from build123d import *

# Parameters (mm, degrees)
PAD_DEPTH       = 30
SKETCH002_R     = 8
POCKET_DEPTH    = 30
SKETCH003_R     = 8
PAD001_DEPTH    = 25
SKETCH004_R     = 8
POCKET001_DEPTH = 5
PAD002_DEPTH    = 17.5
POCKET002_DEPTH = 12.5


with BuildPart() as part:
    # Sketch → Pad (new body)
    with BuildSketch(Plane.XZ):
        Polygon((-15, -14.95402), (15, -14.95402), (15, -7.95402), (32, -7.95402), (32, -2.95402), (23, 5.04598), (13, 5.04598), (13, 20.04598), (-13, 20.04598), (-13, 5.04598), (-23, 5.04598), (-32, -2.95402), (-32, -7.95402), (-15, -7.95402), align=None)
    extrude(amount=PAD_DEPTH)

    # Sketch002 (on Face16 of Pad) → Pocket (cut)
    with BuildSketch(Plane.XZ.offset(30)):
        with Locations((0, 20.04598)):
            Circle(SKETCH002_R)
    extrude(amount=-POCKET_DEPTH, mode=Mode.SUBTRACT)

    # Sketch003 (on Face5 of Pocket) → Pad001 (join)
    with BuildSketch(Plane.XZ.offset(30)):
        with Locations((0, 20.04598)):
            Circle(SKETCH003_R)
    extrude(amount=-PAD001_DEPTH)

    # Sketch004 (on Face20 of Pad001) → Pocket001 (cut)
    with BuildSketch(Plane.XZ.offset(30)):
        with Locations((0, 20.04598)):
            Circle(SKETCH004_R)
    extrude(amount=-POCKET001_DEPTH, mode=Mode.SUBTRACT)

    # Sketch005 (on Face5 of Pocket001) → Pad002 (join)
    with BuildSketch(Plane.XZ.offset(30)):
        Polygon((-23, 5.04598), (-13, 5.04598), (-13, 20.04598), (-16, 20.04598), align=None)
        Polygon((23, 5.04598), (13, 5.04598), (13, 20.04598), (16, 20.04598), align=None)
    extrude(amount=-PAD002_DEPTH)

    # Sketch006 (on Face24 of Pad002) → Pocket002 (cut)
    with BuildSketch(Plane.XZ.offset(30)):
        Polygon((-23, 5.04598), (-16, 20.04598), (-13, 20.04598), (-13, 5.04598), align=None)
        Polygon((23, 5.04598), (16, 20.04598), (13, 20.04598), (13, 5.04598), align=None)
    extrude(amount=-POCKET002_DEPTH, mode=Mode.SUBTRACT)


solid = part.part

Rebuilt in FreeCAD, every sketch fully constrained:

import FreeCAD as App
import Part
import Sketcher
from FreeCAD import Vector
Q = App.Units.Quantity

doc = App.newDocument("Part")
body = doc.addObject("PartDesign::Body", "Body")

# Sketch on XZ plane
sketch1 = body.newObject("Sketcher::SketchObject", "Sketch")
sketch1.AttachmentSupport = (doc.getObject("XZ_Plane"), [""])
sketch1.MapMode = "FlatFace"
sketch1.addGeometry([
    Part.LineSegment(Vector(-15, -15, 0), Vector(15, -15, 0)),  # 0
    Part.LineSegment(Vector(15, -15, 0), Vector(15, -8, 0)),  # 1
    Part.LineSegment(Vector(15, -8, 0), Vector(32, -8, 0)),  # 2
    Part.LineSegment(Vector(32, -8, 0), Vector(32, -3, 0)),  # 3
    Part.LineSegment(Vector(32, -3, 0), Vector(23, 5, 0)),  # 4
    Part.LineSegment(Vector(23, 5, 0), Vector(13, 5, 0)),  # 5
    Part.LineSegment(Vector(13, 5, 0), Vector(13, 20, 0)),  # 6
    Part.LineSegment(Vector(13, 20, 0), Vector(-13, 20, 0)),  # 7
    Part.LineSegment(Vector(-13, 20, 0), Vector(-13, 5, 0)),  # 8
    Part.LineSegment(Vector(-13, 5, 0), Vector(-23, 5, 0)),  # 9
    Part.LineSegment(Vector(-23, 5, 0), Vector(-32, -3, 0)),  # 10
    Part.LineSegment(Vector(-32, -3, 0), Vector(-32, -8, 0)),  # 11
    Part.LineSegment(Vector(-32, -8, 0), Vector(-15, -8, 0)),  # 12
    Part.LineSegment(Vector(-15, -8, 0), Vector(-15, -15, 0)),  # 13
], False)
sketch1.addConstraint([
    Sketcher.Constraint("Coincident", 0, 2, 1, 1),
    Sketcher.Constraint("Coincident", 1, 2, 2, 1),
    Sketcher.Constraint("Coincident", 2, 2, 3, 1),
    Sketcher.Constraint("Coincident", 3, 2, 4, 1),
    Sketcher.Constraint("Coincident", 4, 2, 5, 1),
    Sketcher.Constraint("Coincident", 5, 2, 6, 1),
    Sketcher.Constraint("Coincident", 6, 2, 7, 1),
    Sketcher.Constraint("Coincident", 7, 2, 8, 1),
    Sketcher.Constraint("Coincident", 8, 2, 9, 1),
    Sketcher.Constraint("Coincident", 9, 2, 10, 1),
    Sketcher.Constraint("Coincident", 10, 2, 11, 1),
    Sketcher.Constraint("Coincident", 11, 2, 12, 1),
    Sketcher.Constraint("Coincident", 12, 2, 13, 1),
    Sketcher.Constraint("Coincident", 13, 2, 0, 1),
    Sketcher.Constraint("Horizontal", 0),
    Sketcher.Constraint("Vertical", 1),
    Sketcher.Constraint("Horizontal", 2),
    Sketcher.Constraint("Vertical", 3),
    Sketcher.Constraint("Horizontal", 5),
    Sketcher.Constraint("Vertical", 6),
    Sketcher.Constraint("Horizontal", 7),
    Sketcher.Constraint("Vertical", 8),
    Sketcher.Constraint("Horizontal", 9),
    Sketcher.Constraint("Vertical", 11),
    Sketcher.Constraint("Horizontal", 12),
    Sketcher.Constraint("Vertical", 13),
    Sketcher.Constraint("Symmetric", 5, 2, 8, 2, -2),
    Sketcher.Constraint("Symmetric", 3, 2, 10, 2, -2),
    Sketcher.Constraint("Symmetric", 1, 2, 12, 2, -2),
    Sketcher.Constraint("Equal", 5, 9),
    Sketcher.Constraint("DistanceX", 0, 1, 0, 2, Q("30 mm")),
    Sketcher.Constraint("DistanceX", 2, 1, 2, 2, Q("17 mm")),
    Sketcher.Constraint("DistanceX", 5, 2, 5, 1, Q("10 mm")),
    Sketcher.Constraint("DistanceX", 7, 2, 7, 1, Q("26 mm")),
    Sketcher.Constraint("DistanceY", 1, 1, 1, 2, Q("7 mm")),
    Sketcher.Constraint("DistanceY", 3, 1, 3, 2, Q("5 mm")),
    Sketcher.Constraint("DistanceY", 6, 1, 6, 2, Q("15 mm")),
    Sketcher.Constraint("DistanceY", 3, 2, 4, 2, Q("8 mm")),
    Sketcher.Constraint("DistanceY", 0, 2, -1, 1, Q("14.95402 mm")),
])
pad1 = body.newObject("PartDesign::Pad", "Pad")
pad1.Profile = sketch1
pad1.Length = 30

# Sketch on XZ plane
sketch2 = body.newObject("Sketcher::SketchObject", "Sketch001")
sketch2.AttachmentSupport = (doc.getObject("XZ_Plane"), [""])
sketch2.MapMode = "FlatFace"
sketch2.AttachmentOffset = App.Placement(Vector(0, 0, 30), App.Rotation())
sketch2.addGeometry(Part.Circle(Vector(0, 20, 0), Vector(0, 0, 1), 8), False)
sketch2.addConstraint([
    Sketcher.Constraint("PointOnObject", 0, 3, -2),
    Sketcher.Constraint("Diameter", 0, Q("16 mm")),
    Sketcher.Constraint("DistanceY", -1, 1, 0, 3, Q("20.04598 mm")),
])
pocket1 = body.newObject("PartDesign::Pocket", "Pocket")
pocket1.Profile = sketch2
pocket1.Length = 30

# Sketch on XZ plane
sketch3 = body.newObject("Sketcher::SketchObject", "Sketch002")
sketch3.AttachmentSupport = (doc.getObject("XZ_Plane"), [""])
sketch3.MapMode = "FlatFace"
sketch3.AttachmentOffset = App.Placement(Vector(0, 0, 30), App.Rotation())
sketch3.addGeometry(Part.Circle(Vector(0, 20, 0), Vector(0, 0, 1), 8), False)
sketch3.addConstraint([
    Sketcher.Constraint("PointOnObject", 0, 3, -2),
    Sketcher.Constraint("Diameter", 0, Q("16 mm")),
    Sketcher.Constraint("DistanceY", -1, 1, 0, 3, Q("20.04598 mm")),
])
pad2 = body.newObject("PartDesign::Pad", "Pad001")
pad2.Profile = sketch3
pad2.Length = 25
pad2.Reversed = True

# Sketch on XZ plane
sketch4 = body.newObject("Sketcher::SketchObject", "Sketch003")
sketch4.AttachmentSupport = (doc.getObject("XZ_Plane"), [""])
sketch4.MapMode = "FlatFace"
sketch4.AttachmentOffset = App.Placement(Vector(0, 0, 30), App.Rotation())
sketch4.addGeometry(Part.Circle(Vector(0, 20, 0), Vector(0, 0, 1), 8), False)
sketch4.addConstraint([
    Sketcher.Constraint("PointOnObject", 0, 3, -2),
    Sketcher.Constraint("Diameter", 0, Q("16 mm")),
    Sketcher.Constraint("DistanceY", -1, 1, 0, 3, Q("20.04598 mm")),
])
pocket2 = body.newObject("PartDesign::Pocket", "Pocket001")
pocket2.Profile = sketch4
pocket2.Length = 5

# Sketch on XZ plane
sketch5 = body.newObject("Sketcher::SketchObject", "Sketch004")
sketch5.AttachmentSupport = (doc.getObject("XZ_Plane"), [""])
sketch5.MapMode = "FlatFace"
sketch5.AttachmentOffset = App.Placement(Vector(0, 0, 30), App.Rotation())
sketch5.addGeometry([
    Part.LineSegment(Vector(-23, 5, 0), Vector(-13, 5, 0)),  # 0
    Part.LineSegment(Vector(-13, 5, 0), Vector(-13, 20, 0)),  # 1
    Part.LineSegment(Vector(-13, 20, 0), Vector(-16, 20, 0)),  # 2
    Part.LineSegment(Vector(-16, 20, 0), Vector(-23, 5, 0)),  # 3
    Part.LineSegment(Vector(13, 5, 0), Vector(23, 5, 0)),  # 4
    Part.LineSegment(Vector(23, 5, 0), Vector(16, 20, 0)),  # 5
    Part.LineSegment(Vector(16, 20, 0), Vector(13, 20, 0)),  # 6
    Part.LineSegment(Vector(13, 20, 0), Vector(13, 5, 0)),  # 7
], False)
sketch5.addConstraint([
    Sketcher.Constraint("Coincident", 0, 2, 1, 1),
    Sketcher.Constraint("Coincident", 1, 2, 2, 1),
    Sketcher.Constraint("Coincident", 2, 2, 3, 1),
    Sketcher.Constraint("Coincident", 3, 2, 0, 1),
    Sketcher.Constraint("Coincident", 4, 2, 5, 1),
    Sketcher.Constraint("Coincident", 5, 2, 6, 1),
    Sketcher.Constraint("Coincident", 6, 2, 7, 1),
    Sketcher.Constraint("Coincident", 7, 2, 4, 1),
    Sketcher.Constraint("Horizontal", 0),
    Sketcher.Constraint("Vertical", 1),
    Sketcher.Constraint("Horizontal", 2),
    Sketcher.Constraint("Horizontal", 4),
    Sketcher.Constraint("Horizontal", 6),
    Sketcher.Constraint("Vertical", 7),
    Sketcher.Constraint("Symmetric", 3, 2, 4, 2, -2),
    Sketcher.Constraint("Symmetric", 2, 2, 5, 2, -2),
    Sketcher.Constraint("Equal", 0, 4),
    Sketcher.Constraint("DistanceX", 0, 1, 0, 2, Q("10 mm")),
    Sketcher.Constraint("DistanceX", 2, 2, 2, 1, Q("3 mm")),
    Sketcher.Constraint("DistanceY", 1, 1, 1, 2, Q("15 mm")),
    Sketcher.Constraint("DistanceX", 0, 2, -1, 1, Q("13 mm")),
    Sketcher.Constraint("DistanceY", -1, 1, 0, 2, Q("5.04598 mm")),
])
pad3 = body.newObject("PartDesign::Pad", "Pad002")
pad3.Profile = sketch5
pad3.Length = 17.5
pad3.Reversed = True

# Sketch on XZ plane
sketch6 = body.newObject("Sketcher::SketchObject", "Sketch005")
sketch6.AttachmentSupport = (doc.getObject("XZ_Plane"), [""])
sketch6.MapMode = "FlatFace"
sketch6.AttachmentOffset = App.Placement(Vector(0, 0, 30), App.Rotation())
sketch6.addGeometry([
    Part.LineSegment(Vector(-16, 20, 0), Vector(-23, 5, 0)),  # 0
    Part.LineSegment(Vector(-23, 5, 0), Vector(-13, 5, 0)),  # 1
    Part.LineSegment(Vector(-13, 5, 0), Vector(-13, 20, 0)),  # 2
    Part.LineSegment(Vector(-13, 20, 0), Vector(-16, 20, 0)),  # 3
    Part.LineSegment(Vector(23, 5, 0), Vector(16, 20, 0)),  # 4
    Part.LineSegment(Vector(16, 20, 0), Vector(13, 20, 0)),  # 5
    Part.LineSegment(Vector(13, 20, 0), Vector(13, 5, 0)),  # 6
    Part.LineSegment(Vector(13, 5, 0), Vector(23, 5, 0)),  # 7
], False)
sketch6.addConstraint([
    Sketcher.Constraint("Coincident", 0, 2, 1, 1),
    Sketcher.Constraint("Coincident", 1, 2, 2, 1),
    Sketcher.Constraint("Coincident", 2, 2, 3, 1),
    Sketcher.Constraint("Coincident", 3, 2, 0, 1),
    Sketcher.Constraint("Coincident", 4, 2, 5, 1),
    Sketcher.Constraint("Coincident", 5, 2, 6, 1),
    Sketcher.Constraint("Coincident", 6, 2, 7, 1),
    Sketcher.Constraint("Coincident", 7, 2, 4, 1),
    Sketcher.Constraint("Horizontal", 1),
    Sketcher.Constraint("Vertical", 2),
    Sketcher.Constraint("Horizontal", 3),
    Sketcher.Constraint("Horizontal", 5),
    Sketcher.Constraint("Vertical", 6),
    Sketcher.Constraint("Horizontal", 7),
    Sketcher.Constraint("Symmetric", 3, 2, 4, 2, -2),
    Sketcher.Constraint("Symmetric", 1, 2, 6, 2, -2),
    Sketcher.Constraint("Equal", 1, 7),
    Sketcher.Constraint("DistanceX", 1, 1, 1, 2, Q("10 mm")),
    Sketcher.Constraint("DistanceX", 3, 2, 3, 1, Q("3 mm")),
    Sketcher.Constraint("DistanceY", 2, 1, 2, 2, Q("15 mm")),
    Sketcher.Constraint("DistanceX", 0, 2, -1, 1, Q("23 mm")),
    Sketcher.Constraint("DistanceY", -1, 1, 0, 2, Q("5.04598 mm")),
])
pocket3 = body.newObject("PartDesign::Pocket", "Pocket002")
pocket3.Profile = sketch6
pocket3.Length = 12.5

doc.recompute()
